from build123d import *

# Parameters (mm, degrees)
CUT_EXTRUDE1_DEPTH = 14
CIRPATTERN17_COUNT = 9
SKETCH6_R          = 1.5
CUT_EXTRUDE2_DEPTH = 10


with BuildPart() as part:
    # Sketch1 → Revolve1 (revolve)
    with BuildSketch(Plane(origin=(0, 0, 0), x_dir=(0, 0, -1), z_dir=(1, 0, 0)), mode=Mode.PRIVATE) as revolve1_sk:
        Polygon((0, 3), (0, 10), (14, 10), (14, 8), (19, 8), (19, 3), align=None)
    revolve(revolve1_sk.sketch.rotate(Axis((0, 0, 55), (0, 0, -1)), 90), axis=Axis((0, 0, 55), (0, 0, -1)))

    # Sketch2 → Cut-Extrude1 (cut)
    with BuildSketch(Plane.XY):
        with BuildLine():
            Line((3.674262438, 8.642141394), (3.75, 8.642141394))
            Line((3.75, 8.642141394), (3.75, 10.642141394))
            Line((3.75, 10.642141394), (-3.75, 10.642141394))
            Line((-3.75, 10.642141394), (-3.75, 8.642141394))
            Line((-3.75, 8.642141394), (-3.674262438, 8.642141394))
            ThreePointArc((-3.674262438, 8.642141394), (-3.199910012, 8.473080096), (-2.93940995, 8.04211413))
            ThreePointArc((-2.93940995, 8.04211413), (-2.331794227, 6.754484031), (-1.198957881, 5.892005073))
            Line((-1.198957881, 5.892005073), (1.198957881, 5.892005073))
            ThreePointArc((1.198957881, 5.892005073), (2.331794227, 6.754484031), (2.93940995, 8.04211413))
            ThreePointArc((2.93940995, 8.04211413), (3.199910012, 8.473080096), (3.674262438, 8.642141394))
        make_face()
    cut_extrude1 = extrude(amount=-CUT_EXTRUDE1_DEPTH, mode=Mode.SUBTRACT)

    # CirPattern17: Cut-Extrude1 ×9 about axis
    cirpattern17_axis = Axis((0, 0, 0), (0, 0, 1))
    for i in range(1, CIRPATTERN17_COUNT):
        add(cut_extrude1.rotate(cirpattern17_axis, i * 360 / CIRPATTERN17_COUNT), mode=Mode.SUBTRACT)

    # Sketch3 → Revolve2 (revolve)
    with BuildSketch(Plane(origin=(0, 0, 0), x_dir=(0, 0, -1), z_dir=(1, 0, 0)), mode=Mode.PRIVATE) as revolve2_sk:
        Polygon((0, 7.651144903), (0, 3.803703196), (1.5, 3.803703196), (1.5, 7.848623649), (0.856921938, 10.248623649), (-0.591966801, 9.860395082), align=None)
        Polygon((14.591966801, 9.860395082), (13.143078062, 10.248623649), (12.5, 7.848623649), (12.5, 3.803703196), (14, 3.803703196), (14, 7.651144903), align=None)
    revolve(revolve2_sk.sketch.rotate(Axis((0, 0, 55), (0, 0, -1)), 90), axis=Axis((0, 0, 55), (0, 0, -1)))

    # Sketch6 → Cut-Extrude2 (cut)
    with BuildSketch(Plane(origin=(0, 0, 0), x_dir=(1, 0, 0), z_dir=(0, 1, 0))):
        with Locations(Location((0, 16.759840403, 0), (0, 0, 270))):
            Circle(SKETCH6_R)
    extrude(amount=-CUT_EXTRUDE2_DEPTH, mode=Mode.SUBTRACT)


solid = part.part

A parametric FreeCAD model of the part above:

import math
import FreeCAD as App
import Part
import Sketcher
Q = App.Units.Quantity

doc = App.newDocument("Part")
body = doc.addObject("PartDesign::Body", "Body")

sketch1 = doc.addObject("Sketcher::SketchObject", "Sketch")
body.addObject(sketch1)
sketch1.AttachmentSupport = (doc.YZ_Plane, [""])
sketch1.MapMode = "FlatFace"
sketch1.addGeometry([
    Part.LineSegment(App.Vector(10, 0, 0), App.Vector(3, 0, 0)),
    Part.LineSegment(App.Vector(3, 0, 0), App.Vector(3, -19, 0)),
    Part.LineSegment(App.Vector(3, -19, 0), App.Vector(8, -19, 0)),
    Part.LineSegment(App.Vector(8, -19, 0), App.Vector(8, -14, 0)),
    Part.LineSegment(App.Vector(8, -14, 0), App.Vector(10, -14, 0)),
    Part.LineSegment(App.Vector(10, -14, 0), App.Vector(10, 0, 0)),
], False)
sketch1.addConstraint([
    Sketcher.Constraint("Coincident", 0, 2, 1, 1),
    Sketcher.Constraint("Coincident", 1, 2, 2, 1),
    Sketcher.Constraint("Coincident", 2, 2, 3, 1),
    Sketcher.Constraint("Coincident", 3, 2, 4, 1),
    Sketcher.Constraint("Coincident", 4, 2, 5, 1),
    Sketcher.Constraint("Coincident", 5, 2, 0, 1),
    Sketcher.Constraint("Horizontal", 0),
    Sketcher.Constraint("Vertical", 1),
    Sketcher.Constraint("Horizontal", 2),
    Sketcher.Constraint("Vertical", 3),
    Sketcher.Constraint("Horizontal", 4),
    Sketcher.Constraint("Vertical", 5),
    Sketcher.Constraint("PointOnObject", 0, 2, -1),
    Sketcher.Constraint("Equal", 2, 3),
    Sketcher.Constraint("DistanceX", 0, 2, 0, 1, Q("7 mm")),
    Sketcher.Constraint("DistanceX", 2, 1, 2, 2, Q("5 mm")),
    Sketcher.Constraint("DistanceY", 1, 2, 1, 1, Q("19 mm")),
    Sketcher.Constraint("DistanceX", -1, 1, 0, 2, Q("3 mm")),
])
revolution = doc.addObject("PartDesign::Revolution", "Revolution")
body.addObject(revolution)
revolution.Profile = sketch1
revolution.ReferenceAxis = (sketch1, ["V_Axis"])
revolution.Angle = 360

sketch2 = doc.addObject("Sketcher::SketchObject", "Sketch001")
body.addObject(sketch2)
sketch2.AttachmentSupport = (doc.XY_Plane, [""])
sketch2.MapMode = "FlatFace"
sketch2.addGeometry([
    Part.LineSegment(App.Vector(3.67, 8.64, 0), App.Vector(3.75, 8.64, 0)),
    Part.LineSegment(App.Vector(3.75, 8.64, 0), App.Vector(3.75, 10.64, 0)),
    Part.LineSegment(App.Vector(3.75, 10.64, 0), App.Vector(-3.75, 10.64, 0)),
    Part.LineSegment(App.Vector(-3.75, 10.64, 0), App.Vector(-3.75, 8.64, 0)),
    Part.LineSegment(App.Vector(-3.75, 8.64, 0), App.Vector(-3.67, 8.64, 0)),
    Part.ArcOfCircle(Part.Circle(App.Vector(-3.67, 7.89, 0), App.Vector(0, 0, 1), 0.75), math.radians(12), math.radians(90)),
    Part.ArcOfCircle(Part.Circle(App.Vector(0, 8.64, 0), App.Vector(0, 0, 1), 3), math.radians(-168), math.radians(-114)),
    Part.LineSegment(App.Vector(-1.2, 5.89, 0), App.Vector(1.2, 5.89, 0)),
    Part.ArcOfCircle(Part.Circle(App.Vector(0, 8.64, 0), App.Vector(0, 0, 1), 3), math.radians(-66), math.radians(-12)),
    Part.ArcOfCircle(Part.Circle(App.Vector(3.67, 7.89, 0), App.Vector(0, 0, 1), 0.75), math.radians(90), math.radians(168)),
], False)
sketch2.addConstraint([
    Sketcher.Constraint("Coincident", 0, 2, 1, 1),
    Sketcher.Constraint("Coincident", 1, 2, 2, 1),
    Sketcher.Constraint("Coincident", 2, 2, 3, 1),
    Sketcher.Constraint("Coincident", 3, 2, 4, 1),
    Sketcher.Constraint("Tangent", 4, 2, 5, 2),
    Sketcher.Constraint("Tangent", 5, 1, 6, 1),
    Sketcher.Constraint("Coincident", 6, 2, 7, 1),
    Sketcher.Constraint("Coincident", 7, 2, 8, 1),
    Sketcher.Constraint("Tangent", 8, 2, 9, 2),
    Sketcher.Constraint("Tangent", 9, 1, 0, 1),
    Sketcher.Constraint("Horizontal", 0),
    Sketcher.Constraint("Vertical", 1),
    Sketcher.Constraint("Horizontal", 2),
    Sketcher.Constraint("Vertical", 3),
    Sketcher.Constraint("Horizontal", 4),
    Sketcher.Constraint("Horizontal", 7),
    Sketcher.Constraint("Coincident", 8, 3, 6, 3),
    Sketcher.Constraint("Equal", 6, 8),
    Sketcher.Constraint("Equal", 5, 9),
    Sketcher.Constraint("Symmetric", 5, 3, 9, 3, -2),
    Sketcher.Constraint("Equal", 0, 4),
    Sketcher.Constraint("Radius", 6, Q("3 mm")),
    Sketcher.Constraint("DistanceY", 1, 1, 1, 2, Q("2 mm")),
    Sketcher.Constraint("Radius", 5, Q("0.75 mm")),
    Sketcher.Constraint("DistanceX", 2, 2, 2, 1, Q("7.5 mm")),
    Sketcher.Constraint("DistanceY", 6, 2, 6, 3, Q("2.75 mm")),
    Sketcher.Constraint("DistanceX", 0, 1, 0, 2, Q("0.075738 mm")),
    Sketcher.Constraint("DistanceY", -1, 1, 5, 3, Q("7.892141 mm")),
])
pocket1 = doc.addObject("PartDesign::Pocket", "Pocket")
body.addObject(pocket1)
pocket1.Profile = sketch2
pocket1.Length = 14
doc.recompute()

polarpattern = doc.addObject("PartDesign::PolarPattern", "PolarPattern")
body.addObject(polarpattern)
polarpattern.Originals = [pocket1]
polarpattern.Axis = (doc.Z_Axis, [""])
polarpattern.Angle = 360
polarpattern.Occurrences = 9
body.Tip = polarpattern

sketch3 = doc.addObject("Sketcher::SketchObject", "Sketch002")
body.addObject(sketch3)
sketch3.AttachmentSupport = (doc.YZ_Plane, [""])
sketch3.MapMode = "FlatFace"
sketch3.addGeometry([
    Part.LineSegment(App.Vector(7.7, 0, 0), App.Vector(3.8, 0, 0)),
    Part.LineSegment(App.Vector(3.8, 0, 0), App.Vector(3.8, -1.5, 0)),
    Part.LineSegment(App.Vector(3.8, -1.5, 0), App.Vector(7.8, -1.5, 0)),
    Part.LineSegment(App.Vector(7.8, -1.5, 0), App.Vector(10.2, -0.9, 0)),
    Part.LineSegment(App.Vector(10.2, -0.9, 0), App.Vector(9.9, 0.6, 0)),
    Part.LineSegment(App.Vector(9.9, 0.6, 0), App.Vector(7.7, 0, 0)),
    Part.LineSegment(App.Vector(9.9, -14.6, 0), App.Vector(10.2, -13.1, 0)),
    Part.LineSegment(App.Vector(10.2, -13.1, 0), App.Vector(7.8, -12.5, 0)),
    Part.LineSegment(App.Vector(7.8, -12.5, 0), App.Vector(3.8, -12.5, 0)),
    Part.LineSegment(App.Vector(3.8, -12.5, 0), App.Vector(3.8, -14, 0)),
    Part.LineSegment(App.Vector(3.8, -14, 0), App.Vector(7.7, -14, 0)),
    Part.LineSegment(App.Vector(7.7, -14, 0), App.Vector(9.9, -14.6, 0)),
], False)
sketch3.addConstraint([
    Sketcher.Constraint("Coincident", 0, 2, 1, 1),
    Sketcher.Constraint("Coincident", 1, 2, 2, 1),
    Sketcher.Constraint("Coincident", 2, 2, 3, 1),
    Sketcher.Constraint("Coincident", 3, 2, 4, 1),
    Sketcher.Constraint("Coincident", 4, 2, 5, 1),
    Sketcher.Constraint("Coincident", 5, 2, 0, 1),
    Sketcher.Constraint("Coincident", 6, 2, 7, 1),
    Sketcher.Constraint("Coincident", 7, 2, 8, 1),
    Sketcher.Constraint("Coincident", 8, 2, 9, 1),
    Sketcher.Constraint("Coincident", 9, 2, 10, 1),
    Sketcher.Constraint("Coincident", 10, 2, 11, 1),
    Sketcher.Constraint("Coincident", 11, 2, 6, 1),
    Sketcher.Constraint("Horizontal", 0),
    Sketcher.Constraint("Vertical", 1),
    Sketcher.Constraint("Horizontal", 2),
    Sketcher.Constraint("Horizontal", 8),
    Sketcher.Constraint("Vertical", 9),
    Sketcher.Constraint("Horizontal", 10),
    Sketcher.Constraint("PointOnObject", 0, 2, -1),
    Sketcher.Constraint("Perpendicular", 3, 4),
    Sketcher.Constraint("Perpendicular", 4, 5),
    Sketcher.Constraint("Perpendicular", 6, 7),
    Sketcher.Constraint("Parallel", 7, 11),
    Sketcher.Constraint("Vertical", 3, 2, 6, 2),
    Sketcher.Constraint("Vertical", 2, 2, 7, 2),
    Sketcher.Constraint("Vertical", 1, 2, 8, 2),
    Sketcher.Constraint("Vertical", 5, 2, 10, 2),
    Sketcher.Constraint("Vertical", 4, 2, 11, 2),
    Sketcher.Constraint("Equal", 1, 9),
    Sketcher.Constraint("Angle", 3, Q("15 deg")),
    Sketcher.Constraint("DistanceY", 1, 2, 1, 1, Q("1.5 mm")),
    Sketcher.Constraint("DistanceY", 9, 2, -1, 1, Q("14 mm")),
    Sketcher.Constraint("Distance", 4, Q("1.5 mm")),
    Sketcher.Constraint("DistanceX", 2, 2, 3, 2, Q("2.4 mm")),
    Sketcher.Constraint("DistanceX", 0, 2, 0, 1, Q("3.847442 mm")),
    Sketcher.Constraint("DistanceX", -1, 1, 0, 2, Q("3.803703 mm")),
])
revolution2 = doc.addObject("PartDesign::Revolution", "Revolution001")
body.addObject(revolution2)
revolution2.Profile = sketch3
revolution2.ReferenceAxis = (sketch3, ["V_Axis"])
revolution2.Angle = 360

sketch4 = doc.addObject("Sketcher::SketchObject", "Sketch003")
body.addObject(sketch4)
sketch4.AttachmentSupport = (doc.XZ_Plane, [""])
sketch4.MapMode = "FlatFace"
sketch4.addGeometry(Part.Circle(App.Vector(0, -16.8, 0), App.Vector(0, 0, 1), 1.5), False)
sketch4.addConstraint([
    Sketcher.Constraint("PointOnObject", 0, 3, -2),
    Sketcher.Constraint("Diameter", 0, Q("3 mm")),
    Sketcher.Constraint("DistanceY", 0, 3, -1, 1, Q("16.75984 mm")),
])
pocket2 = doc.addObject("PartDesign::Pocket", "Pocket001")
body.addObject(pocket2)
pocket2.Profile = sketch4
pocket2.Length = 10
pocket2.Reversed = True

doc.recompute()
